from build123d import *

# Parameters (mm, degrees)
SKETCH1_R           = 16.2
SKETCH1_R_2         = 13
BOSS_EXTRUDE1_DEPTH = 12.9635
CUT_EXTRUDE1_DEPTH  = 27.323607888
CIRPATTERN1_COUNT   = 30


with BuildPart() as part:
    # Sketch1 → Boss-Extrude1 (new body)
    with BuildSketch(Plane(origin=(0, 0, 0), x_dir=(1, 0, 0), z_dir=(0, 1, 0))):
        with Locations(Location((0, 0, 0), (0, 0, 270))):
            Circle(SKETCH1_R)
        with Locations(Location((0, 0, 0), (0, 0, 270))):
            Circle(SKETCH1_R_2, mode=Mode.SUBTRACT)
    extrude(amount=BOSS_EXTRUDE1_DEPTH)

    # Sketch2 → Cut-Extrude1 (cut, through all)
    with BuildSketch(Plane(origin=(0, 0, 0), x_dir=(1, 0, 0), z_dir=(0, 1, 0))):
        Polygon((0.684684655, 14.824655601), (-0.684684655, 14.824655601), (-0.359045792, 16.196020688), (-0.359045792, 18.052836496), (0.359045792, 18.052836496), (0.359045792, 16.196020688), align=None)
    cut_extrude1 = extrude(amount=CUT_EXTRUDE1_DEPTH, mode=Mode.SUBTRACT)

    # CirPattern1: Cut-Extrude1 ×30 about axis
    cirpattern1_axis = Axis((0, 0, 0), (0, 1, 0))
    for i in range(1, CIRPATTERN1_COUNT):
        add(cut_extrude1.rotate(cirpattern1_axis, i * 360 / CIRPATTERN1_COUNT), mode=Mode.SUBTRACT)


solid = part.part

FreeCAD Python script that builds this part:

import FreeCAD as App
import Part
import Sketcher
Q = App.Units.Quantity


def add_polygon(sketch, points):
    """Adds a closed chain of lines whose ends are joined by coincident constraints."""
    first, n = sketch.GeometryCount, len(points)
    for a, b in zip(points, points[1:] + points[:1]):
        sketch.addGeometry(Part.LineSegment(App.Vector(*a, 0), App.Vector(*b, 0)), False)
    for i in range(n):
        sketch.addConstraint(Sketcher.Constraint("Coincident", first + i, 2, first + (i + 1) % n, 1))

doc = App.newDocument("Part")
body = doc.addObject("PartDesign::Body", "Body")

# Sketch on XZ plane
sketch1 = body.newObject("Sketcher::SketchObject", "Sketch")
sketch1.AttachmentSupport = (doc.getObject("XZ_Plane"), [""])
sketch1.MapMode = "FlatFace"
sketch1.addGeometry([
    Part.Circle(App.Vector(0, 0, 0), App.Vector(0, 0, 1), 16.2),
    Part.Circle(App.Vector(0, 0, 0), App.Vector(0, 0, 1), 13),
], False)
sketch1.addConstraint([
    Sketcher.Constraint("Coincident", 0, 3, -1, 1),
    Sketcher.Constraint("Coincident", 1, 3, -1, 1),
    Sketcher.Constraint("Diameter", 1, Q("26 mm")),
    Sketcher.Constraint("Diameter", 0, Q("32.4 mm")),
])
pad1 = body.newObject("PartDesign::Pad", "Pad")
pad1.Profile = sketch1
pad1.Length = 12.9635
pad1.Reversed = True

# Sketch on XZ plane
sketch2 = body.newObject("Sketcher::SketchObject", "Sketch001")
sketch2.AttachmentSupport = (doc.getObject("XZ_Plane"), [""])
sketch2.MapMode = "FlatFace"
add_polygon(sketch2, [(-0.684685, -14.824656), (0.684685, -14.824656), (0.359046, -16.196021), (0.359046, -18.052836), (-0.359046, -18.052836), (-0.359046, -16.196021)])  # lines 0-5
sketch2.addConstraint([
    Sketcher.Constraint("Horizontal", 0),
    Sketcher.Constraint("Vertical", 2),
    Sketcher.Constraint("Horizontal", 3),
    Sketcher.Constraint("Vertical", 4),
    Sketcher.Constraint("Symmetric", 1, 2, 4, 2, -2),
    Sketcher.Constraint("Equal", 1, 5),
    Sketcher.Constraint("DistanceX", 0, 1, 0, 2, Q("1.369369 mm")),
    Sketcher.Constraint("DistanceX", 3, 2, 3, 1, Q("0.718092 mm")),
    Sketcher.Constraint("DistanceY", 2, 2, 2, 1, Q("1.856816 mm")),
    Sketcher.Constraint("DistanceY", 1, 2, -1, 1, Q("16.196021 mm")),
    Sketcher.Constraint("DistanceY", 2, 2, 0, 2, Q("3.228181 mm")),
])
pocket1 = body.newObject("PartDesign::Pocket", "Pocket")
pocket1.Profile = sketch2
pocket1.Type = "ThroughAll"
doc.recompute()

polarpattern = body.newObject("PartDesign::PolarPattern", "PolarPattern")
polarpattern.Originals = [pocket1]
polarpattern.Axis = (doc.getObject("Y_Axis"), [""])
polarpattern.Angle = 360
polarpattern.Occurrences = 30
body.Tip = polarpattern

doc.recompute()
